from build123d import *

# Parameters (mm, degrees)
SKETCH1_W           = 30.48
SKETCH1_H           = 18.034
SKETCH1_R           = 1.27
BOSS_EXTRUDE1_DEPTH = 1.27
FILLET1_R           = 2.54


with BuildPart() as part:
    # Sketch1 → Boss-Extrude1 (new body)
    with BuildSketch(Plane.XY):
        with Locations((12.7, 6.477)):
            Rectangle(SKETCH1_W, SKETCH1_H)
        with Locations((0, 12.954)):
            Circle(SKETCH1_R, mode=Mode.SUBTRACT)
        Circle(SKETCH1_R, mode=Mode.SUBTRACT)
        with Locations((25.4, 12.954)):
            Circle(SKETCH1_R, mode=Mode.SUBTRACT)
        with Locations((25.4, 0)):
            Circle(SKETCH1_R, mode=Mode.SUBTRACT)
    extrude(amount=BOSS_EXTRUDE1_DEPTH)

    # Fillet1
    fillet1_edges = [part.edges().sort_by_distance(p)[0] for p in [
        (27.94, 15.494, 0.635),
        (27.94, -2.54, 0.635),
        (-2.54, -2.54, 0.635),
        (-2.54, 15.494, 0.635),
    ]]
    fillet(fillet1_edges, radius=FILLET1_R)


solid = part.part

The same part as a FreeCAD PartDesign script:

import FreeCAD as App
import Part
import Sketcher

V = App.Vector
Q = App.Units.Quantity


def edges_at(feature, points):
    """Names of the edges that pass closest to the given points."""
    edges = feature.Shape.Edges
    near = lambda p: min(range(len(edges)), key=lambda i: edges[i].distToShape(Part.Vertex(*p))[0])
    return sorted({f"Edge{near(p) + 1}" for p in points})

doc = App.newDocument("Part")
body = doc.addObject("PartDesign::Body", "Body")

sketch1 = body.newObject("Sketcher::SketchObject", "Sketch")
sketch1.AttachmentSupport = (doc.getObject("XY_Plane"), [""])
sketch1.MapMode = "FlatFace"
sketch1.addGeometry([
    Part.LineSegment(V(-2.5, 15.5, 0), V(-2.5, -2.5, 0)),
    Part.LineSegment(V(-2.5, -2.5, 0), V(27.9, -2.5, 0)),
    Part.LineSegment(V(27.9, -2.5, 0), V(27.9, 15.5, 0)),
    Part.LineSegment(V(27.9, 15.5, 0), V(-2.5, 15.5, 0)),
    Part.Circle(V(0, 0, 0), V(0, 0, 1), 1.3),
    Part.Circle(V(25.4, 0, 0), V(0, 0, 1), 1.3),
    Part.Circle(V(0, 13, 0), V(0, 0, 1), 1.3),
    Part.Circle(V(25.4, 13, 0), V(0, 0, 1), 1.3),
], False)
sketch1.addConstraint([
    Sketcher.Constraint("Coincident", 0, 2, 1, 1),
    Sketcher.Constraint("Coincident", 1, 2, 2, 1),
    Sketcher.Constraint("Coincident", 2, 2, 3, 1),
    Sketcher.Constraint("Coincident", 3, 2, 0, 1),
    Sketcher.Constraint("Vertical", 0),
    Sketcher.Constraint("Horizontal", 1),
    Sketcher.Constraint("Vertical", 2),
    Sketcher.Constraint("Horizontal", 3),
    Sketcher.Constraint("Coincident", 4, 3, -1, 1),
    Sketcher.Constraint("Equal", 4, 5),
    Sketcher.Constraint("Equal", 5, 6),
    Sketcher.Constraint("Equal", 6, 7),
    Sketcher.Constraint("PointOnObject", 5, 3, -1),
    Sketcher.Constraint("PointOnObject", 6, 3, -2),
    Sketcher.Constraint("Horizontal", 6, 3, 7, 3),
    Sketcher.Constraint("Vertical", 5, 3, 7, 3),
    Sketcher.Constraint("Diameter", 4, Q("0.1 in")),
    Sketcher.Constraint("DistanceX", 1, 1, 1, 2, Q("1.2 in")),
    Sketcher.Constraint("DistanceX", -1, 1, 5, 3, Q("1 in")),
    Sketcher.Constraint("DistanceY", 0, 2, 0, 1, Q("0.71 in")),
    Sketcher.Constraint("DistanceX", 0, 2, -1, 1, Q("0.1 in")),
    Sketcher.Constraint("DistanceY", 0, 2, -1, 1, Q("0.1 in")),
    Sketcher.Constraint("DistanceY", 7, 3, 2, 2, Q("0.1 in")),
])
pad1 = body.newObject("PartDesign::Pad", "Pad")
pad1.Profile = sketch1
pad1.Length = Q("0.05 in")
doc.recompute()

fillet = body.newObject("PartDesign::Fillet", "Fillet")
fillet.Base = (pad1, edges_at(pad1, [
    (27.94, 15.494, 0.635),
    (27.94, -2.54, 0.635),
    (-2.54, -2.54, 0.635),
    (-2.54, 15.494, 0.635),
]))
fillet.Radius = Q("0.1 in")

doc.recompute()
